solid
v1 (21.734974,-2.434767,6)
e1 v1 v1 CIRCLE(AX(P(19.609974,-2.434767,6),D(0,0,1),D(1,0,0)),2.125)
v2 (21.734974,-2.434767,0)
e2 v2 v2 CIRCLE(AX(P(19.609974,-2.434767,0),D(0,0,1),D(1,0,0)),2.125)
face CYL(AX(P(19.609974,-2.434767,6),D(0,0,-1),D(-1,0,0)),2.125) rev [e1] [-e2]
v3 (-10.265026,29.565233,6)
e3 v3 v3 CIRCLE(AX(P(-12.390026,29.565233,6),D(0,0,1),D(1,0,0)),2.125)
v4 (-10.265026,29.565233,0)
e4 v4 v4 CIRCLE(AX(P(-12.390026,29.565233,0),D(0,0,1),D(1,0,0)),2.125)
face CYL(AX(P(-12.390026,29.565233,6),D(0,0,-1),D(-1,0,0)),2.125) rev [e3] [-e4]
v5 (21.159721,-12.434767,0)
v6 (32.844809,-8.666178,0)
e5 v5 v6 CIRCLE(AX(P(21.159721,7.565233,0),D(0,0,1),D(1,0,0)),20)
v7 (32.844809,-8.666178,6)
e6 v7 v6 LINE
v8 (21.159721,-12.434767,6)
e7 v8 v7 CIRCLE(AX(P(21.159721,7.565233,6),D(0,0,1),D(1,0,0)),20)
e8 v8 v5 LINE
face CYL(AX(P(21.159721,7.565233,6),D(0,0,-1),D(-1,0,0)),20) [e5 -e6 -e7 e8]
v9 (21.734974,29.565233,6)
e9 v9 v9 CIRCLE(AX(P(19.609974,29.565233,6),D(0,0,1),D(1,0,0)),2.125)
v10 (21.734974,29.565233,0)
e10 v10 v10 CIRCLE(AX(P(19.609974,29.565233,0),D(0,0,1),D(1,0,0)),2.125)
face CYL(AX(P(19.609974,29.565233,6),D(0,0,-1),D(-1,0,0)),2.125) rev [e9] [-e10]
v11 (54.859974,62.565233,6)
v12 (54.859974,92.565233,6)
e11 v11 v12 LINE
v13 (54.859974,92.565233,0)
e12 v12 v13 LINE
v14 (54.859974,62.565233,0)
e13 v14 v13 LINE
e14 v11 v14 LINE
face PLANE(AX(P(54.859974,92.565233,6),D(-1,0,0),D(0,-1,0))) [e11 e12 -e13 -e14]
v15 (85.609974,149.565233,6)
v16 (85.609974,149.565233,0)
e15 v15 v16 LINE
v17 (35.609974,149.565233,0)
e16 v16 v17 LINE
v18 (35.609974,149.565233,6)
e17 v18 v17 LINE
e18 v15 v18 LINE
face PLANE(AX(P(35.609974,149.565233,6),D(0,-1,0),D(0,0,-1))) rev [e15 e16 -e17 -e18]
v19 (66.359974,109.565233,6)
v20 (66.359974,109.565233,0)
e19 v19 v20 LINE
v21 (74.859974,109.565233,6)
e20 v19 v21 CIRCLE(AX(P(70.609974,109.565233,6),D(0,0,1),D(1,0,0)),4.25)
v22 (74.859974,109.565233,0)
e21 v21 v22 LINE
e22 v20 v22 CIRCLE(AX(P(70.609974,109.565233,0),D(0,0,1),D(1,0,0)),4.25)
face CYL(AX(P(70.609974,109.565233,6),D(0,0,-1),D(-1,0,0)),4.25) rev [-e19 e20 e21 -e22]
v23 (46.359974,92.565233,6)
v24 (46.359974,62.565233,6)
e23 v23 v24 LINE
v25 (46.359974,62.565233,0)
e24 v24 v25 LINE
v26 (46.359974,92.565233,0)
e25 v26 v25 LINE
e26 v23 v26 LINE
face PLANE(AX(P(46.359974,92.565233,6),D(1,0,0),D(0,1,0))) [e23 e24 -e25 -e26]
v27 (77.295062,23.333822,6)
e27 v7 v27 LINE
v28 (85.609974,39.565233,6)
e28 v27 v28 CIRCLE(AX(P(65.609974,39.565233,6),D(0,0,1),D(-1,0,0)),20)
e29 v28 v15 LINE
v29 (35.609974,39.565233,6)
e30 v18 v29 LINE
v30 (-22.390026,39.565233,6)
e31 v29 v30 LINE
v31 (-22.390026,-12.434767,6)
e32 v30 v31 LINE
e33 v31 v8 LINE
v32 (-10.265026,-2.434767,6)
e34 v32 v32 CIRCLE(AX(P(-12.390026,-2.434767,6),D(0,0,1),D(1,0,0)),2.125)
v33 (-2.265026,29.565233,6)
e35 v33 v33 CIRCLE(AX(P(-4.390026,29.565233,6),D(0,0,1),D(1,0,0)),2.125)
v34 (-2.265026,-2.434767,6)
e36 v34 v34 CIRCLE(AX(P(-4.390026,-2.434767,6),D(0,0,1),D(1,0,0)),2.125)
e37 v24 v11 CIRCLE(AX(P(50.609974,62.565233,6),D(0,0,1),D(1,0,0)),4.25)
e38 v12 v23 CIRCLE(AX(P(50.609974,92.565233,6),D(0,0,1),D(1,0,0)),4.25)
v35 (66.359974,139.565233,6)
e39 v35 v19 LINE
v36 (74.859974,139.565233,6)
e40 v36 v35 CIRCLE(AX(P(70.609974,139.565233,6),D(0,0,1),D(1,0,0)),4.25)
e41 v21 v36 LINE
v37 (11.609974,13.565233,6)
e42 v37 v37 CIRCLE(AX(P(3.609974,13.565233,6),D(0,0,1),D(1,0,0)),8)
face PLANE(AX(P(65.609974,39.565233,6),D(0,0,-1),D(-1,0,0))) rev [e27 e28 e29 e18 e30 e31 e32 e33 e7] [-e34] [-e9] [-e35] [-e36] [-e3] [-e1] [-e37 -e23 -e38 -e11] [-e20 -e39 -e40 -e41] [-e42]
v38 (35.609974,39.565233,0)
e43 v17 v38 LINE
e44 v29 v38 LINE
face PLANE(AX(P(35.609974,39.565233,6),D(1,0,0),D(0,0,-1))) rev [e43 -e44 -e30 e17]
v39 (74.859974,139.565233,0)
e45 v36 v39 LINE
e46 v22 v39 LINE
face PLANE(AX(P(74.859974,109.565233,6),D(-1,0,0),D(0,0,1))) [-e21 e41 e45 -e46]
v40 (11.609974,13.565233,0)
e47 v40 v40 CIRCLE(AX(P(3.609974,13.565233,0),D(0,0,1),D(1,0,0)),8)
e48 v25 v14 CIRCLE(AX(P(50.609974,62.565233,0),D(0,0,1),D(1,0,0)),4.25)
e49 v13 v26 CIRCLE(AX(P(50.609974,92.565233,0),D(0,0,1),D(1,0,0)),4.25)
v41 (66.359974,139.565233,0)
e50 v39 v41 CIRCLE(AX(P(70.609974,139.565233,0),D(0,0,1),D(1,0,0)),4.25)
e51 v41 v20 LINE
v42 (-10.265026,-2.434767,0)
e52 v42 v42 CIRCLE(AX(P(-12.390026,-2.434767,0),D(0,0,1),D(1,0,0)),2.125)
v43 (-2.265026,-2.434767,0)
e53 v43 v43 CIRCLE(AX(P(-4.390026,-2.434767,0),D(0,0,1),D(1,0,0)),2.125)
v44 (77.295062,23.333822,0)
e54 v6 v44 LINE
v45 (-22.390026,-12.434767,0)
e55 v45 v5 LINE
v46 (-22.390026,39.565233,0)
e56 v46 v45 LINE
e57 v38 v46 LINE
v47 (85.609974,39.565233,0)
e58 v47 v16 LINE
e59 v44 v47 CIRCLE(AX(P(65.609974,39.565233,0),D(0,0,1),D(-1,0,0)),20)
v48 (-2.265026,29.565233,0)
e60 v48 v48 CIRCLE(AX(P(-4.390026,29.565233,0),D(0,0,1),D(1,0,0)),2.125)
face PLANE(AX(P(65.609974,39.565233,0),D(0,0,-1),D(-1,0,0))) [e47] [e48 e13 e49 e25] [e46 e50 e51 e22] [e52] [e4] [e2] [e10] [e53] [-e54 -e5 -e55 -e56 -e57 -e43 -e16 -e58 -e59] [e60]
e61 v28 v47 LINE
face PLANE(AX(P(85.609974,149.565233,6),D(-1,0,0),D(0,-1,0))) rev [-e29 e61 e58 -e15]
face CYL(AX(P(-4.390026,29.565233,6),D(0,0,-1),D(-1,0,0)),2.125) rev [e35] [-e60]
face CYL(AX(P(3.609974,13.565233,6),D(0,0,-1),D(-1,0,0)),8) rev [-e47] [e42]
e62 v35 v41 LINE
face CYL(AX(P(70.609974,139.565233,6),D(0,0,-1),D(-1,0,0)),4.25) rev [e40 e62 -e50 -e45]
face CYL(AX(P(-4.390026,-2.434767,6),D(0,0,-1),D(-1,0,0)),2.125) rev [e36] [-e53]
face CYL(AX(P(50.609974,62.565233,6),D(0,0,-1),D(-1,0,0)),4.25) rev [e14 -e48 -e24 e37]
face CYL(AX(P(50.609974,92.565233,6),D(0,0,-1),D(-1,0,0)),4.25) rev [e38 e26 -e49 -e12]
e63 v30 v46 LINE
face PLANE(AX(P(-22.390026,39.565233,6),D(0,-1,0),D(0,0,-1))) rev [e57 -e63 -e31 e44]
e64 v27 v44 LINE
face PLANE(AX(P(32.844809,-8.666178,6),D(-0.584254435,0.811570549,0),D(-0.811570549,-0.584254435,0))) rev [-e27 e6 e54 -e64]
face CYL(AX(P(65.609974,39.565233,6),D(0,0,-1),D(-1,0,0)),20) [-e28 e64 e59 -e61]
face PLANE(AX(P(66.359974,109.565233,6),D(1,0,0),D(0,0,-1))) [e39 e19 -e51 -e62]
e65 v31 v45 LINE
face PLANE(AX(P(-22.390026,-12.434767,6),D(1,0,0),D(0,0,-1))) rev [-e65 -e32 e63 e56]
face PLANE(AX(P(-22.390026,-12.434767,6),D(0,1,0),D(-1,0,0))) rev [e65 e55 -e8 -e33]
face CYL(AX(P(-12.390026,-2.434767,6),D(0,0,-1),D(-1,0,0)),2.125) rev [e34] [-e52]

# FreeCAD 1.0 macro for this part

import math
import FreeCAD as App
import Part
import Sketcher

V = App.Vector

doc = App.newDocument("Part")
body = doc.addObject("PartDesign::Body", "Body")

sketch1 = body.newObject("Sketcher::SketchObject", "Sketch")
sketch1.AttachmentSupport = (doc.getObject("XY_Plane"), [""])
sketch1.MapMode = "FlatFace"
sketch1.addGeometry([
    Part.LineSegment(V(-22.4, -12.4, 0), V(21.2, -12.4, 0)),
    Part.ArcOfCircle(Part.Circle(V(21.2, 7.6, 0), V(0, 0, 1), 20), math.radians(-90), math.radians(-54)),
    Part.LineSegment(V(32.8, -8.7, 0), V(77.3, 23.3, 0)),
    Part.ArcOfCircle(Part.Circle(V(65.6, 39.6, 0), V(0, 0, 1), 20), math.radians(-54), math.radians(0)),
    Part.LineSegment(V(85.6, 39.6, 0), V(85.6, 149.6, 0)),
    Part.LineSegment(V(85.6, 149.6, 0), V(35.6, 149.6, 0)),
    Part.LineSegment(V(35.6, 149.6, 0), V(35.6, 39.6, 0)),
    Part.LineSegment(V(35.6, 39.6, 0), V(-22.4, 39.6, 0)),
    Part.LineSegment(V(-22.4, 39.6, 0), V(-22.4, -12.4, 0)),
    Part.Circle(V(-12.4, -2.4, 0), V(0, 0, 1), 2.1),
    Part.Circle(V(-4.4, -2.4, 0), V(0, 0, 1), 2.1),
    Part.Circle(V(3.6, 13.6, 0), V(0, 0, 1), 8),
    Part.Circle(V(-12.4, 29.6, 0), V(0, 0, 1), 2.1),
    Part.Circle(V(-4.4, 29.6, 0), V(0, 0, 1), 2.1),
    Part.Circle(V(19.6, -2.4, 0), V(0, 0, 1), 2.1),
    Part.Circle(V(19.6, 29.6, 0), V(0, 0, 1), 2.1),
    Part.ArcOfCircle(Part.Circle(V(50.6, 92.6, 0), V(0, 0, 1), 4.2), math.radians(0), math.radians(180)),
    Part.LineSegment(V(54.9, 92.6, 0), V(54.9, 62.6, 0)),
    Part.ArcOfCircle(Part.Circle(V(50.6, 62.6, 0), V(0, 0, 1), 4.2), math.radians(180), math.radians(360)),
    Part.LineSegment(V(46.4, 62.6, 0), V(46.4, 92.6, 0)),
    Part.ArcOfCircle(Part.Circle(V(70.6, 109.6, 0), V(0, 0, 1), 4.2), math.radians(180), math.radians(360)),
    Part.LineSegment(V(66.4, 109.6, 0), V(66.4, 139.6, 0)),
    Part.ArcOfCircle(Part.Circle(V(70.6, 139.6, 0), V(0, 0, 1), 4.2), math.radians(0), math.radians(180)),
    Part.LineSegment(V(74.9, 139.6, 0), V(74.9, 109.6, 0)),
], False)
sketch1.addConstraint([
    Sketcher.Constraint("Tangent", 0, 2, 1, 1),
    Sketcher.Constraint("Tangent", 1, 2, 2, 1),
    Sketcher.Constraint("Tangent", 2, 2, 3, 1),
    Sketcher.Constraint("Tangent", 3, 2, 4, 1),
    Sketcher.Constraint("Coincident", 4, 2, 5, 1),
    Sketcher.Constraint("Coincident", 5, 2, 6, 1),
    Sketcher.Constraint("Coincident", 6, 2, 7, 1),
    Sketcher.Constraint("Coincident", 7, 2, 8, 1),
    Sketcher.Constraint("Coincident", 8, 2, 0, 1),
    Sketcher.Constraint("Tangent", 16, 1, 17, 1),
    Sketcher.Constraint("Tangent", 17, 2, 18, 2),
    Sketcher.Constraint("Tangent", 18, 1, 19, 1),
    Sketcher.Constraint("Tangent", 19, 2, 16, 2),
    Sketcher.Constraint("Tangent", 20, 1, 21, 1),
    Sketcher.Constraint("Tangent", 21, 2, 22, 2),
    Sketcher.Constraint("Tangent", 22, 1, 23, 1),
    Sketcher.Constraint("Tangent", 23, 2, 20, 2),
    Sketcher.Constraint("Horizontal", 0),
    Sketcher.Constraint("Vertical", 4),
    Sketcher.Constraint("Horizontal", 5),
    Sketcher.Constraint("Vertical", 6),
    Sketcher.Constraint("Horizontal", 7),
    Sketcher.Constraint("Vertical", 8),
    Sketcher.Constraint("Vertical", 17),
    Sketcher.Constraint("Vertical", 19),
    Sketcher.Constraint("Vertical", 21),
    Sketcher.Constraint("Vertical", 23),
    Sketcher.Constraint("Equal", 1, 3),
    Sketcher.Constraint("Equal", 9, 10),
    Sketcher.Constraint("Equal", 10, 12),
    Sketcher.Constraint("Equal", 12, 13),
    Sketcher.Constraint("Equal", 13, 14),
    Sketcher.Constraint("Equal", 14, 15),
    Sketcher.Constraint("Equal", 18, 20),
    Sketcher.Constraint("Horizontal", 9, 3, 10, 3),
    Sketcher.Constraint("Horizontal", 12, 3, 13, 3),
    Sketcher.Constraint("Horizontal", 10, 3, 14, 3),
    Sketcher.Constraint("Horizontal", 13, 3, 15, 3),
    Sketcher.Constraint("Horizontal", 3, 2, 6, 2),
    Sketcher.Constraint("Vertical", 9, 3, 12, 3),
    Sketcher.Constraint("Vertical", 10, 3, 13, 3),
    Sketcher.Constraint("Vertical", 14, 3, 15, 3),
    Sketcher.Constraint("Equal", 19, 21),
    Sketcher.Constraint("Diameter", 11, 16.0),
    Sketcher.Constraint("Radius", 1, 20.0),
    Sketcher.Constraint("Diameter", 9, 4.25),
    Sketcher.Constraint("DistanceX", 5, 2, 5, 1, 50.0),
    Sketcher.Constraint("DistanceX", 7, 2, 7, 1, 58.0),
    Sketcher.Constraint("DistanceY", 4, 1, 4, 2, 110.0),
    Sketcher.Constraint("DistanceY", 8, 2, 8, 1, 52.0),
    Sketcher.Constraint("DistanceY", 17, 2, 17, 1, 30.0),
    Sketcher.Constraint("Radius", 16, 4.25),
    Sketcher.Constraint("DistanceY", 9, 3, 1, 3, 10.0),
    Sketcher.Constraint("DistanceX", 9, 3, 3, 3, 78.0),
    Sketcher.Constraint("DistanceX", 9, 3, 10, 3, 8.0),
    Sketcher.Constraint("DistanceX", 10, 3, 11, 3, 8.0),
    Sketcher.Constraint("DistanceY", 10, 3, 11, 3, 16.0),
    Sketcher.Constraint("DistanceY", 11, 3, 12, 3, 16.0),
    Sketcher.Constraint("DistanceX", 11, 3, 14, 3, 16.0),
    Sketcher.Constraint("DistanceX", 16, 3, 3, 3, 15.0),
    Sketcher.Constraint("DistanceY", 3, 3, 16, 3, 53.0),
    Sketcher.Constraint("DistanceX", 16, 3, 20, 3, 20.0),
    Sketcher.Constraint("DistanceY", 16, 3, 20, 3, 17.0),
    Sketcher.Constraint("Distance", 2, 54.770658),
    Sketcher.Constraint("DistanceX", -1, 1, 1, 3, 21.159721),
    Sketcher.Constraint("DistanceY", -1, 1, 1, 3, 7.565233),
])
pad1 = body.newObject("PartDesign::Pad", "Pad")
pad1.Profile = sketch1
pad1.Length = 6

doc.recompute()
